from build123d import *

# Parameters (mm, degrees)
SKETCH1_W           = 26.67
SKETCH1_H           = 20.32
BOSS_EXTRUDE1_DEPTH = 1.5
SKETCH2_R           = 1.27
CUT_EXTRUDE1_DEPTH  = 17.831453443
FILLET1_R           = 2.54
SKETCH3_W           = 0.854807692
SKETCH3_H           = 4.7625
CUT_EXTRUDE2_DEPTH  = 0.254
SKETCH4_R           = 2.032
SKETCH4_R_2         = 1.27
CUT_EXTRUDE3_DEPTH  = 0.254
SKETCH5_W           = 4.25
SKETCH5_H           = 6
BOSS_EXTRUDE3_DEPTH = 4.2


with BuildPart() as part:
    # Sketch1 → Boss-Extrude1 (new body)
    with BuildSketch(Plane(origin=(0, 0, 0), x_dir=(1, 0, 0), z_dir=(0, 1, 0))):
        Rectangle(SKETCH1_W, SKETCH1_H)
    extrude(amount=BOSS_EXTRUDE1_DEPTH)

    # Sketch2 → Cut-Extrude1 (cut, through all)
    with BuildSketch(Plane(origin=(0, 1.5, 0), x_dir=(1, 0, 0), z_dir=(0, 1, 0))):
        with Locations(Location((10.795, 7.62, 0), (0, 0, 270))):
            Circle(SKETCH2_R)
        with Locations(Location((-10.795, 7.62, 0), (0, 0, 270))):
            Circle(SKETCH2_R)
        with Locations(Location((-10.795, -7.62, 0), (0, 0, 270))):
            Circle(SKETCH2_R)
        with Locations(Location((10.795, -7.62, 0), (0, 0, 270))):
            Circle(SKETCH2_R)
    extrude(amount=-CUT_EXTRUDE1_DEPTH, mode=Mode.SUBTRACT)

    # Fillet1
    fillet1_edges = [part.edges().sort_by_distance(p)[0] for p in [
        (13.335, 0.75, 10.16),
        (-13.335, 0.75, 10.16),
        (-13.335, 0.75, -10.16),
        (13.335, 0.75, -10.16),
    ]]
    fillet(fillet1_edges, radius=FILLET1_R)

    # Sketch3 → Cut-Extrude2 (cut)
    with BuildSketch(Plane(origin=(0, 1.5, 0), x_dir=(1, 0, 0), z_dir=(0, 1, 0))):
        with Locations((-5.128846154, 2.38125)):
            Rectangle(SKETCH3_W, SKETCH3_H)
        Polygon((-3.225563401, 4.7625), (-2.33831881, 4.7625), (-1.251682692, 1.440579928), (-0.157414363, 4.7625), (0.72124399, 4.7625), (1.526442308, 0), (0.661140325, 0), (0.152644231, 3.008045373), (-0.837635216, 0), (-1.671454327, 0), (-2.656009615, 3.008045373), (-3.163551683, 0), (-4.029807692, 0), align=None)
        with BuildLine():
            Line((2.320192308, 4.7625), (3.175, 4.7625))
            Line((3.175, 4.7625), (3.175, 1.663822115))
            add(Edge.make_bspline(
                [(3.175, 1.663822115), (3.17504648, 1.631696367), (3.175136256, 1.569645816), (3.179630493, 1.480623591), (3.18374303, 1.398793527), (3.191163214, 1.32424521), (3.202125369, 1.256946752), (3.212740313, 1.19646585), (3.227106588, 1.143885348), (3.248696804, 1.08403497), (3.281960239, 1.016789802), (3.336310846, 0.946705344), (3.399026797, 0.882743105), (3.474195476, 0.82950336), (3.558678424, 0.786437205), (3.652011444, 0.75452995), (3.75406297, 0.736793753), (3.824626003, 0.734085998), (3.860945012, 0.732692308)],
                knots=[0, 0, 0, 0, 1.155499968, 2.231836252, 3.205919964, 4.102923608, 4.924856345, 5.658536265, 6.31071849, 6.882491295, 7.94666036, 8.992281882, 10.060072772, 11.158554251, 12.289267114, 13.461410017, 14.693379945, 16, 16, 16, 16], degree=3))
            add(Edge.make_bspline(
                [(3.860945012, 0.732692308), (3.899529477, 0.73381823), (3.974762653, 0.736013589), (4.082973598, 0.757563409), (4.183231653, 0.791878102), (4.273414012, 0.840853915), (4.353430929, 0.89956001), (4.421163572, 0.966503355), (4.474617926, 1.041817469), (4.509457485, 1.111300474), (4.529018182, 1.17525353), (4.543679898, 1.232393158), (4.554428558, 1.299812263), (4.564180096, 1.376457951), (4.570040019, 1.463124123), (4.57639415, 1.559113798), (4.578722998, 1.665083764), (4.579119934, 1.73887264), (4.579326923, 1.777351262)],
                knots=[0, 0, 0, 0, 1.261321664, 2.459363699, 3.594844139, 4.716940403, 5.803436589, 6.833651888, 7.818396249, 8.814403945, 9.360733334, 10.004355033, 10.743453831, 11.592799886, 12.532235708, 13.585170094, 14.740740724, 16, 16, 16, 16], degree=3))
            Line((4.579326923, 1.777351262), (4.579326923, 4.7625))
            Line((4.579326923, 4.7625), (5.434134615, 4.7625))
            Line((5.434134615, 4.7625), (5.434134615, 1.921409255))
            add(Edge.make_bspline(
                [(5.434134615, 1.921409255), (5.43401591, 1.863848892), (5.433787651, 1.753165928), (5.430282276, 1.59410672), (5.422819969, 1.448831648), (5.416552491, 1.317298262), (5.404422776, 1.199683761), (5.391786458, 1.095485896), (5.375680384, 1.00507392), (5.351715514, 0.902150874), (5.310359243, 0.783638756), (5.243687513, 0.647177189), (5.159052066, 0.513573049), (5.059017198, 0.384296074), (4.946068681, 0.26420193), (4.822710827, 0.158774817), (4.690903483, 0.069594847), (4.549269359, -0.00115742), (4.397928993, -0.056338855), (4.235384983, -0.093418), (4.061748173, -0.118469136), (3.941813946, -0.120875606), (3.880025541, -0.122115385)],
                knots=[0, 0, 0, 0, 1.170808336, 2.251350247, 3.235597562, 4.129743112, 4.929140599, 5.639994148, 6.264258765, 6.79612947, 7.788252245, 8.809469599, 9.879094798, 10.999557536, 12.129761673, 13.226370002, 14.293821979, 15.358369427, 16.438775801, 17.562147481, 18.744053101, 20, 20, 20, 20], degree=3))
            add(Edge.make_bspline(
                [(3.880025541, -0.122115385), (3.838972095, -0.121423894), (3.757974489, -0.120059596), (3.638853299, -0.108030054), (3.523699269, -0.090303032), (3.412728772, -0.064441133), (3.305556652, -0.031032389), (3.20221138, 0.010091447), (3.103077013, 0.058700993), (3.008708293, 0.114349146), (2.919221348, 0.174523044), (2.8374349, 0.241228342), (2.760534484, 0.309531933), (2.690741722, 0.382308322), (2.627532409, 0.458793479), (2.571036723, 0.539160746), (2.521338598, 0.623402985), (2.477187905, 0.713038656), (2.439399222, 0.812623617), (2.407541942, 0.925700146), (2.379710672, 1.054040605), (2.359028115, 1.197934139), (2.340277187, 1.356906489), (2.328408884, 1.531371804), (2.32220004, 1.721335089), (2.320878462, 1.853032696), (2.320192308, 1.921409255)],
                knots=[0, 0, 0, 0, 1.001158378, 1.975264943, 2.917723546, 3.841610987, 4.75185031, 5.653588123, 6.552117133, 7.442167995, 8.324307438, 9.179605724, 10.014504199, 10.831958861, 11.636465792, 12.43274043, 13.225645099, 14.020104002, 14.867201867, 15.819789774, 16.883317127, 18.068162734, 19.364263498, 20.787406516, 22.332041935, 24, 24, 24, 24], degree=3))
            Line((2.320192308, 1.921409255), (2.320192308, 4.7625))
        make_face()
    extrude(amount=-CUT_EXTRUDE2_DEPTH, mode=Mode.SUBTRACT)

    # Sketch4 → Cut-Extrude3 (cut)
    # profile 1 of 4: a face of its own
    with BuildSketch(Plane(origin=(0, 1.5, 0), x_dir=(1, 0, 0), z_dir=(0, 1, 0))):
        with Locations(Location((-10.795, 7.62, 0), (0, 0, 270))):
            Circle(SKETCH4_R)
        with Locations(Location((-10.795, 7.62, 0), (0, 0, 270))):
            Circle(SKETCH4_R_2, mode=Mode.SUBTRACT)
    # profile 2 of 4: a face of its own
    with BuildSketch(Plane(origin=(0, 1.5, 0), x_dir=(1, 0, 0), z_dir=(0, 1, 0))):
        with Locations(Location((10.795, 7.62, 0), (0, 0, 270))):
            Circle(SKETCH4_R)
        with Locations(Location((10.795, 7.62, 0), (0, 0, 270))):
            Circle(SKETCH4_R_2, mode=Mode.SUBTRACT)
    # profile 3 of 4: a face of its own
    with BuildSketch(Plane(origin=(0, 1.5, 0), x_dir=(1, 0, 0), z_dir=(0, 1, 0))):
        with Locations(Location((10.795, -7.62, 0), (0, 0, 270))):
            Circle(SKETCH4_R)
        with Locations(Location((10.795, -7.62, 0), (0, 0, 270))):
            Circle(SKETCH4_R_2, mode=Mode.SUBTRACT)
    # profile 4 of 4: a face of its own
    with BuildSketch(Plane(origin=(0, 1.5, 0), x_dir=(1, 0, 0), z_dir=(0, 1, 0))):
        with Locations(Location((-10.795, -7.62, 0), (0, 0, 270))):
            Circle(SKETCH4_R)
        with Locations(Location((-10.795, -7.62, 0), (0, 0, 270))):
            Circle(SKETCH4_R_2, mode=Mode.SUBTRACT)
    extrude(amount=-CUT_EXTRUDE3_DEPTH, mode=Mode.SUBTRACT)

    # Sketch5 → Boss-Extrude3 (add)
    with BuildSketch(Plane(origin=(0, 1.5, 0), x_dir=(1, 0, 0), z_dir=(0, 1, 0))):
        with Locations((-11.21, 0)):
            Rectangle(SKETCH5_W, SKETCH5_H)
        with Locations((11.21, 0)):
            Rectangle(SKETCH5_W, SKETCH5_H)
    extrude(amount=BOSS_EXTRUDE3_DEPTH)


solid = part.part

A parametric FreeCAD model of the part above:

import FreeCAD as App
import Part
import Sketcher
Q = App.Units.Quantity


def edges_at(feature, points):
    """Names of the edges that pass closest to the given points."""
    edges = feature.Shape.Edges
    near = lambda p: min(range(len(edges)), key=lambda i: edges[i].distToShape(Part.Vertex(*p))[0])
    return sorted({f"Edge{near(p) + 1}" for p in points})

doc = App.newDocument("Part")
body = doc.addObject("PartDesign::Body", "Body")

sketch1 = doc.addObject("Sketcher::SketchObject", "Sketch")
body.addObject(sketch1)
sketch1.AttachmentSupport = (doc.XZ_Plane, [""])
sketch1.MapMode = "FlatFace"
sketch1.addGeometry([
    Part.LineSegment(App.Vector(-13, -10, 0), App.Vector(-13, 10, 0)),
    Part.LineSegment(App.Vector(-13, 10, 0), App.Vector(13, 10, 0)),
    Part.LineSegment(App.Vector(13, 10, 0), App.Vector(13, -10, 0)),
    Part.LineSegment(App.Vector(13, -10, 0), App.Vector(-13, -10, 0)),
], False)
sketch1.addConstraint([
    Sketcher.Constraint("Coincident", 0, 2, 1, 1),
    Sketcher.Constraint("Coincident", 1, 2, 2, 1),
    Sketcher.Constraint("Coincident", 2, 2, 3, 1),
    Sketcher.Constraint("Coincident", 3, 2, 0, 1),
    Sketcher.Constraint("Vertical", 0),
    Sketcher.Constraint("Horizontal", 1),
    Sketcher.Constraint("Vertical", 2),
    Sketcher.Constraint("Horizontal", 3),
    Sketcher.Constraint("Symmetric", 0, 2, 2, 2, -1, 1),
    Sketcher.Constraint("DistanceY", 0, 1, 0, 2, Q("0.8 in")),
    Sketcher.Constraint("DistanceX", 1, 1, 1, 2, Q("1.05 in")),
])
pad1 = doc.addObject("PartDesign::Pad", "Pad")
body.addObject(pad1)
pad1.Profile = sketch1
pad1.Length = 1.5
pad1.Reversed = True

sketch2 = doc.addObject("Sketcher::SketchObject", "Sketch001")
body.addObject(sketch2)
sketch2.AttachmentSupport = (doc.XZ_Plane, [""])
sketch2.MapMode = "FlatFace"
sketch2.AttachmentOffset = App.Placement(App.Vector(0, 0, -1.5), App.Rotation())
sketch2.addGeometry([
    Part.Circle(App.Vector(10.8, -7.6, 0), App.Vector(0, 0, 1), 1.3),
    Part.Circle(App.Vector(-10.8, -7.6, 0), App.Vector(0, 0, 1), 1.3),
    Part.Circle(App.Vector(-10.8, 7.6, 0), App.Vector(0, 0, 1), 1.3),
    Part.Circle(App.Vector(10.8, 7.6, 0), App.Vector(0, 0, 1), 1.3),
], False)
sketch2.addConstraint([
    Sketcher.Constraint("Equal", 0, 1),
    Sketcher.Constraint("Equal", 1, 2),
    Sketcher.Constraint("Equal", 2, 3),
    Sketcher.Constraint("Symmetric", 0, 3, 2, 3, -1, 1),
    Sketcher.Constraint("Symmetric", 1, 3, 3, 3, -1, 1),
    Sketcher.Constraint("Symmetric", 0, 3, 1, 3, -2),
    Sketcher.Constraint("Diameter", 0, Q("0.1 in")),
    Sketcher.Constraint("DistanceY", 0, 3, -1, 1, Q("0.3 in")),
    Sketcher.Constraint("DistanceX", 1, 3, 0, 3, Q("0.85 in")),
])
pocket1 = doc.addObject("PartDesign::Pocket", "Pocket")
body.addObject(pocket1)
pocket1.Profile = sketch2
pocket1.Type = "ThroughAll"
pocket1.Reversed = True
doc.recompute()

fillet = doc.addObject("PartDesign::Fillet", "Fillet")
body.addObject(fillet)
fillet.Base = (pocket1, edges_at(pocket1, [
    (13.335, 0.75, 10.16),
    (-13.335, 0.75, 10.16),
    (-13.335, 0.75, -10.16),
    (13.335, 0.75, -10.16),
]))
fillet.Radius = Q("0.1 in")

sketch3 = doc.addObject("Sketcher::SketchObject", "Sketch002")
body.addObject(sketch3)
sketch3.AttachmentSupport = (doc.XZ_Plane, [""])
sketch3.MapMode = "FlatFace"
sketch3.AttachmentOffset = App.Placement(App.Vector(0, 0, -1.5), App.Rotation())
sketch3.addGeometry([
    Part.LineSegment(App.Vector(-5.55625, -4.7625, 0), App.Vector(-5.55625, 0, 0)),
    Part.LineSegment(App.Vector(-5.55625, 0, 0), App.Vector(-4.701442, 0, 0)),
    Part.LineSegment(App.Vector(-4.701442, 0, 0), App.Vector(-4.701442, -4.7625, 0)),
    Part.LineSegment(App.Vector(-4.701442, -4.7625, 0), App.Vector(-5.55625, -4.7625, 0)),
    Part.LineSegment(App.Vector(-2.338319, -4.7625, 0), App.Vector(-3.225563, -4.7625, 0)),
    Part.LineSegment(App.Vector(-3.225563, -4.7625, 0), App.Vector(-4.029808, 0, 0)),
    Part.LineSegment(App.Vector(-4.029808, 0, 0), App.Vector(-3.163552, 0, 0)),
    Part.LineSegment(App.Vector(-3.163552, 0, 0), App.Vector(-2.65601, -3.008045, 0)),
    Part.LineSegment(App.Vector(-2.65601, -3.008045, 0), App.Vector(-1.671454, 0, 0)),
    Part.LineSegment(App.Vector(-1.671454, 0, 0), App.Vector(-0.837635, 0, 0)),
    Part.LineSegment(App.Vector(-0.837635, 0, 0), App.Vector(0.152644, -3.008045, 0)),
    Part.LineSegment(App.Vector(0.152644, -3.008045, 0), App.Vector(0.66114, 0, 0)),
    Part.LineSegment(App.Vector(0.66114, 0, 0), App.Vector(1.526442, 0, 0)),
    Part.LineSegment(App.Vector(1.526442, 0, 0), App.Vector(0.721244, -4.7625, 0)),
    Part.LineSegment(App.Vector(0.721244, -4.7625, 0), App.Vector(-0.157414, -4.7625, 0)),
    Part.LineSegment(App.Vector(-0.157414, -4.7625, 0), App.Vector(-1.251683, -1.44058, 0)),
    Part.LineSegment(App.Vector(-1.251683, -1.44058, 0), App.Vector(-2.338319, -4.7625, 0)),
    Part.LineSegment(App.Vector(3.175, -4.7625, 0), App.Vector(2.320192, -4.7625, 0)),
    Part.LineSegment(App.Vector(2.320192, -4.7625, 0), App.Vector(2.320192, -1.921409, 0)),
    Part.BSplineCurve([App.Vector(3.880026, 0.122115, 0), App.Vector(3.838972, 0.121424, 0), App.Vector(3.757974, 0.12006, 0), App.Vector(3.638853, 0.10803, 0), App.Vector(3.523699, 0.090303, 0), App.Vector(3.412729, 0.064441, 0), App.Vector(3.305557, 0.031032, 0), App.Vector(3.202211, -0.010091, 0), App.Vector(3.103077, -0.058701, 0), App.Vector(3.008708, -0.114349, 0), App.Vector(2.919221, -0.174523, 0), App.Vector(2.837435, -0.241228, 0), App.Vector(2.760534, -0.309532, 0), App.Vector(2.690742, -0.382308, 0), App.Vector(2.627532, -0.458793, 0), App.Vector(2.571037, -0.539161, 0), App.Vector(2.521339, -0.623403, 0), App.Vector(2.477188, -0.713039, 0), App.Vector(2.439399, -0.812624, 0), App.Vector(2.407542, -0.9257, 0), App.Vector(2.379711, -1.054041, 0), App.Vector(2.359028, -1.197934, 0), App.Vector(2.340277, -1.356906, 0), App.Vector(2.328409, -1.531372, 0), App.Vector(2.3222, -1.721335, 0), App.Vector(2.320878, -1.853033, 0), App.Vector(2.320192, -1.921409, 0)], [4, 1, 1, 1, 1, 1, 1, 1, 1, 1, 1, 1, 1, 1, 1, 1, 1, 1, 1, 1, 1, 1, 1, 1, 4], [0, 1.001158378, 1.975264943, 2.917723546, 3.841610987, 4.75185031, 5.653588123, 6.552117133, 7.442167995, 8.324307438, 9.179605724, 10.014504199, 10.831958861, 11.636465792, 12.43274043, 13.225645099, 14.020104002, 14.867201867, 15.819789774, 16.883317127, 18.068162734, 19.364263498, 20.787406516, 22.332041935, 24], False, 3, [1, 1, 1, 1, 1, 1, 1, 1, 1, 1, 1, 1, 1, 1, 1, 1, 1, 1, 1, 1, 1, 1, 1, 1, 1, 1, 1], False),
    Part.BSplineCurve([App.Vector(5.434135, -1.921409, 0), App.Vector(5.434016, -1.863849, 0), App.Vector(5.433788, -1.753166, 0), App.Vector(5.430282, -1.594107, 0), App.Vector(5.42282, -1.448832, 0), App.Vector(5.416552, -1.317298, 0), App.Vector(5.404423, -1.199684, 0), App.Vector(5.391786, -1.095486, 0), App.Vector(5.37568, -1.005074, 0), App.Vector(5.351716, -0.902151, 0), App.Vector(5.310359, -0.783639, 0), App.Vector(5.243688, -0.647177, 0), App.Vector(5.159052, -0.513573, 0), App.Vector(5.059017, -0.384296, 0), App.Vector(4.946069, -0.264202, 0), App.Vector(4.822711, -0.158775, 0), App.Vector(4.690903, -0.069595, 0), App.Vector(4.549269, 0.001157, 0), App.Vector(4.397929, 0.056339, 0), App.Vector(4.235385, 0.093418, 0), App.Vector(4.061748, 0.118469, 0), App.Vector(3.941814, 0.120876, 0), App.Vector(3.880026, 0.122115, 0)], [4, 1, 1, 1, 1, 1, 1, 1, 1, 1, 1, 1, 1, 1, 1, 1, 1, 1, 1, 1, 4], [0, 1.170808336, 2.251350247, 3.235597562, 4.129743112, 4.929140599, 5.639994148, 6.264258765, 6.79612947, 7.788252245, 8.809469599, 9.879094798, 10.999557536, 12.129761673, 13.226370002, 14.293821979, 15.358369427, 16.438775801, 17.562147481, 18.744053101, 20], False, 3, [1, 1, 1, 1, 1, 1, 1, 1, 1, 1, 1, 1, 1, 1, 1, 1, 1, 1, 1, 1, 1, 1, 1], False),
    Part.LineSegment(App.Vector(5.434135, -1.921409, 0), App.Vector(5.434135, -4.7625, 0)),
    Part.LineSegment(App.Vector(5.434135, -4.7625, 0), App.Vector(4.579327, -4.7625, 0)),
    Part.LineSegment(App.Vector(4.579327, -4.7625, 0), App.Vector(4.579327, -1.777351, 0)),
    Part.BSplineCurve([App.Vector(3.860945, -0.732692, 0), App.Vector(3.899529, -0.733818, 0), App.Vector(3.974763, -0.736014, 0), App.Vector(4.082974, -0.757563, 0), App.Vector(4.183232, -0.791878, 0), App.Vector(4.273414, -0.840854, 0), App.Vector(4.353431, -0.89956, 0), App.Vector(4.421164, -0.966503, 0), App.Vector(4.474618, -1.041817, 0), App.Vector(4.509457, -1.1113, 0), App.Vector(4.529018, -1.175254, 0), App.Vector(4.54368, -1.232393, 0), App.Vector(4.554429, -1.299812, 0), App.Vector(4.56418, -1.376458, 0), App.Vector(4.57004, -1.463124, 0), App.Vector(4.576394, -1.559114, 0), App.Vector(4.578723, -1.665084, 0), App.Vector(4.57912, -1.738873, 0), App.Vector(4.579327, -1.777351, 0)], [4, 1, 1, 1, 1, 1, 1, 1, 1, 1, 1, 1, 1, 1, 1, 1, 4], [0, 1.261321664, 2.459363699, 3.594844139, 4.716940403, 5.803436589, 6.833651888, 7.818396249, 8.814403945, 9.360733334, 10.004355033, 10.743453831, 11.592799886, 12.532235708, 13.585170094, 14.740740724, 16], False, 3, [1, 1, 1, 1, 1, 1, 1, 1, 1, 1, 1, 1, 1, 1, 1, 1, 1, 1, 1], False),
    Part.BSplineCurve([App.Vector(3.175, -1.663822, 0), App.Vector(3.175046, -1.631696, 0), App.Vector(3.175136, -1.569646, 0), App.Vector(3.17963, -1.480624, 0), App.Vector(3.183743, -1.398794, 0), App.Vector(3.191163, -1.324245, 0), App.Vector(3.202125, -1.256947, 0), App.Vector(3.21274, -1.196466, 0), App.Vector(3.227107, -1.143885, 0), App.Vector(3.248697, -1.084035, 0), App.Vector(3.28196, -1.01679, 0), App.Vector(3.336311, -0.946705, 0), App.Vector(3.399027, -0.882743, 0), App.Vector(3.474195, -0.829503, 0), App.Vector(3.558678, -0.786437, 0), App.Vector(3.652011, -0.75453, 0), App.Vector(3.754063, -0.736794, 0), App.Vector(3.824626, -0.734086, 0), App.Vector(3.860945, -0.732692, 0)], [4, 1, 1, 1, 1, 1, 1, 1, 1, 1, 1, 1, 1, 1, 1, 1, 4], [0, 1.155499968, 2.231836252, 3.205919964, 4.102923608, 4.924856345, 5.658536265, 6.31071849, 6.882491295, 7.94666036, 8.992281882, 10.060072772, 11.158554251, 12.289267114, 13.461410017, 14.693379945, 16], False, 3, [1, 1, 1, 1, 1, 1, 1, 1, 1, 1, 1, 1, 1, 1, 1, 1, 1, 1, 1], False),
    Part.LineSegment(App.Vector(3.175, -1.663822, 0), App.Vector(3.175, -4.7625, 0)),
], False)
sketch3.addConstraint([
    Sketcher.Constraint("Block", 19),
    Sketcher.Constraint("Block", 20),
    Sketcher.Constraint("Block", 24),
    Sketcher.Constraint("Block", 25),
    Sketcher.Constraint("Coincident", 0, 2, 1, 1),
    Sketcher.Constraint("Coincident", 1, 2, 2, 1),
    Sketcher.Constraint("Coincident", 2, 2, 3, 1),
    Sketcher.Constraint("Coincident", 3, 2, 0, 1),
    Sketcher.Constraint("Coincident", 4, 2, 5, 1),
    Sketcher.Constraint("Coincident", 5, 2, 6, 1),
    Sketcher.Constraint("Coincident", 6, 2, 7, 1),
    Sketcher.Constraint("Coincident", 7, 2, 8, 1),
    Sketcher.Constraint("Coincident", 8, 2, 9, 1),
    Sketcher.Constraint("Coincident", 9, 2, 10, 1),
    Sketcher.Constraint("Coincident", 10, 2, 11, 1),
    Sketcher.Constraint("Coincident", 11, 2, 12, 1),
    Sketcher.Constraint("Coincident", 12, 2, 13, 1),
    Sketcher.Constraint("Coincident", 13, 2, 14, 1),
    Sketcher.Constraint("Coincident", 14, 2, 15, 1),
    Sketcher.Constraint("Coincident", 15, 2, 16, 1),
    Sketcher.Constraint("Coincident", 16, 2, 4, 1),
    Sketcher.Constraint("Coincident", 17, 2, 18, 1),
    Sketcher.Constraint("Coincident", 18, 2, 19, 2),
    Sketcher.Constraint("Coincident", 20, 1, 21, 1),
    Sketcher.Constraint("Coincident", 21, 2, 22, 1),
    Sketcher.Constraint("Coincident", 22, 2, 23, 1),
    Sketcher.Constraint("Coincident", 23, 2, 24, 2),
    Sketcher.Constraint("Coincident", 25, 1, 26, 1),
    Sketcher.Constraint("Coincident", 26, 2, 17, 1),
    Sketcher.Constraint("Vertical", 0),
    Sketcher.Constraint("Horizontal", 1),
    Sketcher.Constraint("Vertical", 2),
    Sketcher.Constraint("Horizontal", 3),
    Sketcher.Constraint("Horizontal", 4),
    Sketcher.Constraint("Horizontal", 6),
    Sketcher.Constraint("Horizontal", 9),
    Sketcher.Constraint("Horizontal", 12),
    Sketcher.Constraint("Horizontal", 14),
    Sketcher.Constraint("Horizontal", 17),
    Sketcher.Constraint("Vertical", 18),
    Sketcher.Constraint("Vertical", 21),
    Sketcher.Constraint("Horizontal", 22),
    Sketcher.Constraint("Vertical", 23),
    Sketcher.Constraint("Vertical", 26),
    Sketcher.Constraint("PointOnObject", 0, 2, -1),
    Sketcher.Constraint("PointOnObject", 5, 2, -1),
    Sketcher.Constraint("PointOnObject", 8, 2, -1),
    Sketcher.Constraint("PointOnObject", 11, 2, -1),
    Sketcher.Constraint("Horizontal", 3, 2, 4, 2),
    Sketcher.Constraint("Horizontal", 7, 2, 10, 2),
    Sketcher.Constraint("Horizontal", 4, 2, 13, 2),
    Sketcher.Constraint("Horizontal", 16, 2, 17, 2),
    Sketcher.Constraint("Horizontal", 17, 2, 21, 2),
    Sketcher.Constraint("Equal", 3, 17),
    Sketcher.Constraint("DistanceY", 0, 1, 0, 2, Q("0.1875 in")),
    Sketcher.Constraint("DistanceX", 0, 2, -1, 1, Q("0.21875 in")),
    Sketcher.Constraint("DistanceX", 12, 2, 17, 2, Q("0.03125 in")),
    Sketcher.Constraint("DistanceX", 12, 1, 12, 2, 0.865302),
    Sketcher.Constraint("DistanceX", 9, 1, 9, 2, 0.833819),
    Sketcher.Constraint("DistanceX", 14, 2, 14, 1, 0.878658),
    Sketcher.Constraint("DistanceX", 0, 2, 6, 2, 2.392698),
    Sketcher.Constraint("DistanceX", 5, 2, 7, 2, 1.373798),
    Sketcher.Constraint("DistanceX", 8, 2, 10, 2, 1.824099),
    Sketcher.Constraint("DistanceX", 10, 2, 12, 2, 1.373798),
    Sketcher.Constraint("DistanceX", 10, 2, 13, 2, 0.5686),
    Sketcher.Constraint("Distance", 5, 4.829929),
    Sketcher.Constraint("Distance", 10, 3.166858),
    Sketcher.Constraint("Distance", 15, 3.49751),
    Sketcher.Constraint("Distance", 16, 3.49513),
    Sketcher.Constraint("DistanceX", 4, 2, 4, 1, 0.887245),
    Sketcher.Constraint("DistanceX", 6, 1, 6, 2, 0.866256),
])
pocket2 = doc.addObject("PartDesign::Pocket", "Pocket001")
body.addObject(pocket2)
pocket2.Profile = sketch3
pocket2.Length = Q("0.01 in")
pocket2.Reversed = True

sketch4 = doc.addObject("Sketcher::SketchObject", "Sketch003")
body.addObject(sketch4)
sketch4.AttachmentSupport = (doc.XZ_Plane, [""])
sketch4.MapMode = "FlatFace"
sketch4.AttachmentOffset = App.Placement(App.Vector(0, 0, -1.5), App.Rotation())
sketch4.addGeometry([
    Part.Circle(App.Vector(-10.8, -7.6, 0), App.Vector(0, 0, 1), 2),
    Part.Circle(App.Vector(-10.8, -7.6, 0), App.Vector(0, 0, 1), 1.3),
    Part.Circle(App.Vector(10.8, -7.6, 0), App.Vector(0, 0, 1), 2),
    Part.Circle(App.Vector(10.8, -7.6, 0), App.Vector(0, 0, 1), 1.3),
    Part.Circle(App.Vector(10.8, 7.6, 0), App.Vector(0, 0, 1), 2),
    Part.Circle(App.Vector(10.8, 7.6, 0), App.Vector(0, 0, 1), 1.3),
    Part.Circle(App.Vector(-10.8, 7.6, 0), App.Vector(0, 0, 1), 2),
    Part.Circle(App.Vector(-10.8, 7.6, 0), App.Vector(0, 0, 1), 1.3),
], False)
sketch4.addConstraint([
    Sketcher.Constraint("Coincident", 1, 3, 0, 3),
    Sketcher.Constraint("Coincident", 3, 3, 2, 3),
    Sketcher.Constraint("Coincident", 5, 3, 4, 3),
    Sketcher.Constraint("Coincident", 7, 3, 6, 3),
    Sketcher.Constraint("Equal", 0, 2),
    Sketcher.Constraint("Equal", 1, 3),
    Sketcher.Constraint("Equal", 2, 4),
    Sketcher.Constraint("Equal", 3, 5),
    Sketcher.Constraint("Equal", 4, 6),
    Sketcher.Constraint("Equal", 5, 7),
    Sketcher.Constraint("Symmetric", 0, 3, 4, 3, -1, 1),
    Sketcher.Constraint("Symmetric", 2, 3, 6, 3, -1, 1),
    Sketcher.Constraint("Symmetric", 0, 3, 2, 3, -2),
    Sketcher.Constraint("Diameter", 1, Q("0.1 in")),
    Sketcher.Constraint("Diameter", 0, Q("0.16 in")),
    Sketcher.Constraint("DistanceY", 0, 3, -1, 1, Q("0.3 in")),
    Sketcher.Constraint("DistanceX", 0, 3, 2, 3, Q("0.85 in")),
])
pocket3 = doc.addObject("PartDesign::Pocket", "Pocket002")
body.addObject(pocket3)
pocket3.Profile = sketch4
pocket3.Length = Q("0.01 in")
pocket3.Reversed = True

sketch5 = doc.addObject("Sketcher::SketchObject", "Sketch004")
body.addObject(sketch5)
sketch5.AttachmentSupport = (doc.XZ_Plane, [""])
sketch5.MapMode = "FlatFace"
sketch5.AttachmentOffset = App.Placement(App.Vector(0, 0, -1.5), App.Rotation())
sketch5.addGeometry([
    Part.LineSegment(App.Vector(-13.3, -3, 0), App.Vector(-13.3, 3, 0)),
    Part.LineSegment(App.Vector(-13.3, 3, 0), App.Vector(-9.1, 3, 0)),
    Part.LineSegment(App.Vector(-9.1, 3, 0), App.Vector(-9.1, -3, 0)),
    Part.LineSegment(App.Vector(-9.1, -3, 0), App.Vector(-13.3, -3, 0)),
    Part.LineSegment(App.Vector(9.1, -3, 0), App.Vector(9.1, 3, 0)),
    Part.LineSegment(App.Vector(9.1, 3, 0), App.Vector(13.3, 3, 0)),
    Part.LineSegment(App.Vector(13.3, 3, 0), App.Vector(13.3, -3, 0)),
    Part.LineSegment(App.Vector(13.3, -3, 0), App.Vector(9.1, -3, 0)),
], False)
sketch5.addConstraint([
    Sketcher.Constraint("Coincident", 0, 2, 1, 1),
    Sketcher.Constraint("Coincident", 1, 2, 2, 1),
    Sketcher.Constraint("Coincident", 2, 2, 3, 1),
    Sketcher.Constraint("Coincident", 3, 2, 0, 1),
    Sketcher.Constraint("Coincident", 4, 2, 5, 1),
    Sketcher.Constraint("Coincident", 5, 2, 6, 1),
    Sketcher.Constraint("Coincident", 6, 2, 7, 1),
    Sketcher.Constraint("Coincident", 7, 2, 4, 1),
    Sketcher.Constraint("Vertical", 0),
    Sketcher.Constraint("Horizontal", 1),
    Sketcher.Constraint("Vertical", 2),
    Sketcher.Constraint("Horizontal", 3),
    Sketcher.Constraint("Vertical", 4),
    Sketcher.Constraint("Horizontal", 5),
    Sketcher.Constraint("Vertical", 6),
    Sketcher.Constraint("Horizontal", 7),
    Sketcher.Constraint("Symmetric", 2, 2, 4, 2, -1, 1),
    Sketcher.Constraint("Symmetric", 0, 2, 6, 2, -1, 1),
    Sketcher.Constraint("Horizontal", 1, 2, 4, 2),
    Sketcher.Constraint("DistanceX", 0, 2, 5, 2, Q("1.05 in")),
    Sketcher.Constraint("DistanceX", 1, 1, 1, 2, 4.25),
    Sketcher.Constraint("DistanceY", 0, 1, 0, 2, 6.0),
])
pad2 = doc.addObject("PartDesign::Pad", "Pad001")
body.addObject(pad2)
pad2.Profile = sketch5
pad2.Length = 4.2
pad2.Reversed = True

doc.recompute()
